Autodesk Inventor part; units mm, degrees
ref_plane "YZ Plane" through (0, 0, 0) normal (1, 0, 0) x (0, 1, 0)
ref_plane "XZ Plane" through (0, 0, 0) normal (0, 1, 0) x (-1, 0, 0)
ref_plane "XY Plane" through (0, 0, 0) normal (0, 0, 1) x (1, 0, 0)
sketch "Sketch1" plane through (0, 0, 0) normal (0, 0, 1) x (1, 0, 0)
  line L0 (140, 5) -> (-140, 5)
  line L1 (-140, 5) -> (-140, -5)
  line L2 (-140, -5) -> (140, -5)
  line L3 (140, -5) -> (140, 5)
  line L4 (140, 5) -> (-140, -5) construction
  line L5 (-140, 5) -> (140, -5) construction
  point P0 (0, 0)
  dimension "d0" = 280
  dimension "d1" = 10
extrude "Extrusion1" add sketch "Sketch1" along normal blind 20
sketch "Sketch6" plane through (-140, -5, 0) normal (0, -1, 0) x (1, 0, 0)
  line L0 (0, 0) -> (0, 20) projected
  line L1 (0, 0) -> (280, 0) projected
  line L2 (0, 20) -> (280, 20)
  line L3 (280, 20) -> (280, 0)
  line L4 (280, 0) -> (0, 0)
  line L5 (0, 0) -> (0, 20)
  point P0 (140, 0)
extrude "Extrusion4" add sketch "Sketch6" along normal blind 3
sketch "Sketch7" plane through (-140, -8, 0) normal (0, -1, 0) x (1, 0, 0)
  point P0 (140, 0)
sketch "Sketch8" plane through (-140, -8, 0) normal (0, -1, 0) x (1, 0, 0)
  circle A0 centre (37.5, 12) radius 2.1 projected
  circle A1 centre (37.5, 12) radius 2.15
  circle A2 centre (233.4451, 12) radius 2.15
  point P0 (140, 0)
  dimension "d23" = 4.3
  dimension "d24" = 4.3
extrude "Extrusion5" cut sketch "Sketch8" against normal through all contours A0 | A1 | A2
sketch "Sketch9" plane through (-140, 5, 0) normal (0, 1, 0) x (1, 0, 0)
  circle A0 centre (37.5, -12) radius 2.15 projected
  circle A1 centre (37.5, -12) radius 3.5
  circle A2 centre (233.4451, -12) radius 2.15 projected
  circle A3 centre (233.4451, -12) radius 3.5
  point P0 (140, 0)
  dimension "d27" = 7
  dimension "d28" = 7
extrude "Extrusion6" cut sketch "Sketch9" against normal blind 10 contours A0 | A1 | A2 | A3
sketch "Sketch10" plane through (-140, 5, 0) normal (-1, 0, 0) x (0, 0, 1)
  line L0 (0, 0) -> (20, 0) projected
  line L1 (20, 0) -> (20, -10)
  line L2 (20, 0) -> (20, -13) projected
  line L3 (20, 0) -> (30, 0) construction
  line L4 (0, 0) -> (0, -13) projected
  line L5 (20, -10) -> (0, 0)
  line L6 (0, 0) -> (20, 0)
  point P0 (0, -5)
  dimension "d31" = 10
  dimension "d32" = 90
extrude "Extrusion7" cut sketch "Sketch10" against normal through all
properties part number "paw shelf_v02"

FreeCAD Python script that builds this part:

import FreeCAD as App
import Part
import Sketcher
Q = App.Units.Quantity


def add_polygon(sketch, points):
    """Adds a closed chain of lines whose ends are joined by coincident constraints."""
    first, n = sketch.GeometryCount, len(points)
    for a, b in zip(points, points[1:] + points[:1]):
        sketch.addGeometry(Part.LineSegment(App.Vector(*a, 0), App.Vector(*b, 0)), False)
    for i in range(n):
        sketch.addConstraint(Sketcher.Constraint("Coincident", first + i, 2, first + (i + 1) % n, 1))

doc = App.newDocument("Part")
params = doc.addObject("Spreadsheet::Sheet", "Params")
for row, (alias, value) in enumerate([
    ("sketch1_width", "280 mm"),
    ("sketch1_height", "10 mm"),
    ("pad1_length", "20 mm"),
    ("sketch2_width", "280 mm"),
    ("sketch2_height", "20 mm"),
    ("pad2_length", "3 mm"),
    ("sketch3_diameter", "4.3 mm"),
    ("sketch4_diameter", "7 mm"),
    ("pocket2_length", "10 mm"),
    ("sketch5_width", "10 mm"),
    ("sketch5_height", "20 mm"),
], start=1):
    params.set(f"A{row}", alias)
    params.set(f"B{row}", "=" + value)
    params.setAlias(f"B{row}", alias)

body = doc.addObject("PartDesign::Body", "Body")

sketch1 = body.newObject("Sketcher::SketchObject", "Sketch")
sketch1.AttachmentSupport = (doc.getObject("XY_Plane"), [""])
sketch1.MapMode = "FlatFace"
add_polygon(sketch1, [(140, -5), (140, 5), (-140, 5), (-140, -5)])
sketch1.addConstraint(Sketcher.Constraint("Vertical", 0))
sketch1.addConstraint(Sketcher.Constraint("Horizontal", 1))
sketch1.addConstraint(Sketcher.Constraint("Vertical", 2))
sketch1.addConstraint(Sketcher.Constraint("Horizontal", 3))
sketch1.addConstraint(Sketcher.Constraint("Symmetric", 0, 2, 2, 2, -1, 1))
sketch1.addConstraint(Sketcher.Constraint("DistanceX", 1, 2, 1, 1, Q("280 mm")))
sketch1.addConstraint(Sketcher.Constraint("DistanceY", 0, 1, 0, 2, Q("10 mm")))
sketch1.setExpression("Constraints[9]", "Params.sketch1_width")
sketch1.setExpression("Constraints[10]", "Params.sketch1_height")
pad1 = body.newObject("PartDesign::Pad", "Pad")
pad1.Profile = sketch1
pad1.setExpression("Length", "Params.pad1_length")

sketch2 = body.newObject("Sketcher::SketchObject", "Sketch001")
sketch2.AttachmentSupport = (doc.getObject("XZ_Plane"), [""])
sketch2.MapMode = "FlatFace"
sketch2.AttachmentOffset = App.Placement(App.Vector(0, 0, 5), App.Rotation())
add_polygon(sketch2, [(-140, 20), (-140, 0), (140, 0), (140, 20)])
sketch2.addConstraint(Sketcher.Constraint("Vertical", 0))
sketch2.addConstraint(Sketcher.Constraint("Horizontal", 1))
sketch2.addConstraint(Sketcher.Constraint("Vertical", 2))
sketch2.addConstraint(Sketcher.Constraint("Horizontal", 3))
sketch2.addConstraint(Sketcher.Constraint("Symmetric", 0, 2, 1, 2, -1, 1))
sketch2.addConstraint(Sketcher.Constraint("DistanceX", 1, 1, 1, 2, Q("280 mm")))
sketch2.addConstraint(Sketcher.Constraint("DistanceY", 0, 2, 0, 1, Q("20 mm")))
sketch2.setExpression("Constraints[9]", "Params.sketch2_width")
sketch2.setExpression("Constraints[10]", "Params.sketch2_height")
pad2 = body.newObject("PartDesign::Pad", "Pad001")
pad2.Profile = sketch2
pad2.setExpression("Length", "Params.pad2_length")

sketch3 = body.newObject("Sketcher::SketchObject", "Sketch002")
sketch3.AttachmentSupport = (doc.getObject("XZ_Plane"), [""])
sketch3.MapMode = "FlatFace"
sketch3.AttachmentOffset = App.Placement(App.Vector(0, 0, 8), App.Rotation())
sketch3.addGeometry(Part.Circle(App.Vector(-102.5, 12, 0), App.Vector(0, 0, 1), 2.1), False)
sketch3.addGeometry(Part.Circle(App.Vector(93.4, 12, 0), App.Vector(0, 0, 1), 2.1), False)
sketch3.addConstraint(Sketcher.Constraint("Equal", 0, 1))
sketch3.addConstraint(Sketcher.Constraint("Horizontal", 0, 3, 1, 3))
sketch3.addConstraint(Sketcher.Constraint("Diameter", 0, Q("4.3 mm")))
sketch3.addConstraint(Sketcher.Constraint("DistanceY", -1, 1, 0, 3, Q("12 mm")))
sketch3.addConstraint(Sketcher.Constraint("DistanceX", 0, 3, -1, 1, Q("102.5 mm")))
sketch3.addConstraint(Sketcher.Constraint("DistanceX", -1, 1, 1, 3, Q("93.445 mm")))
sketch3.setExpression("Constraints[2]", "Params.sketch3_diameter")
pocket1 = body.newObject("PartDesign::Pocket", "Pocket")
pocket1.Profile = sketch3
pocket1.Type = "ThroughAll"

sketch4 = body.newObject("Sketcher::SketchObject", "Sketch003")
sketch4.AttachmentSupport = (doc.getObject("XZ_Plane"), [""])
sketch4.MapMode = "FlatFace"
sketch4.AttachmentOffset = App.Placement(App.Vector(0, 0, -5), App.Rotation())
sketch4.addGeometry(Part.Circle(App.Vector(-102.5, 12, 0), App.Vector(0, 0, 1), 3.5), False)
sketch4.addGeometry(Part.Circle(App.Vector(93.4, 12, 0), App.Vector(0, 0, 1), 3.5), False)
sketch4.addConstraint(Sketcher.Constraint("Equal", 0, 1))
sketch4.addConstraint(Sketcher.Constraint("Horizontal", 0, 3, 1, 3))
sketch4.addConstraint(Sketcher.Constraint("Diameter", 0, Q("7 mm")))
sketch4.addConstraint(Sketcher.Constraint("DistanceY", -1, 1, 0, 3, Q("12 mm")))
sketch4.addConstraint(Sketcher.Constraint("DistanceX", 0, 3, -1, 1, Q("102.5 mm")))
sketch4.addConstraint(Sketcher.Constraint("DistanceX", -1, 1, 1, 3, Q("93.445 mm")))
sketch4.setExpression("Constraints[2]", "Params.sketch4_diameter")
pocket2 = body.newObject("PartDesign::Pocket", "Pocket001")
pocket2.Profile = sketch4
pocket2.setExpression("Length", "Params.pocket2_length")
pocket2.Reversed = True

sketch5 = body.newObject("Sketcher::SketchObject", "Sketch004")
sketch5.AttachmentSupport = (doc.getObject("YZ_Plane"), [""])
sketch5.MapMode = "FlatFace"
sketch5.AttachmentOffset = App.Placement(App.Vector(0, 0, -140), App.Rotation())
add_polygon(sketch5, [(5, 20), (5, 0), (-5, 20)])
sketch5.addConstraint(Sketcher.Constraint("Vertical", 0))
sketch5.addConstraint(Sketcher.Constraint("Horizontal", 2))
sketch5.addConstraint(Sketcher.Constraint("PointOnObject", 0, 2, -1))
sketch5.addConstraint(Sketcher.Constraint("DistanceX", 2, 1, 2, 2, Q("10 mm")))
sketch5.addConstraint(Sketcher.Constraint("DistanceY", 0, 2, 0, 1, Q("20 mm")))
sketch5.addConstraint(Sketcher.Constraint("DistanceX", -1, 1, 0, 2, Q("5 mm")))
sketch5.setExpression("Constraints[6]", "Params.sketch5_width")
sketch5.setExpression("Constraints[7]", "Params.sketch5_height")
pocket3 = body.newObject("PartDesign::Pocket", "Pocket002")
pocket3.Profile = sketch5
pocket3.Type = "ThroughAll"
pocket3.Reversed = True

doc.recompute()
